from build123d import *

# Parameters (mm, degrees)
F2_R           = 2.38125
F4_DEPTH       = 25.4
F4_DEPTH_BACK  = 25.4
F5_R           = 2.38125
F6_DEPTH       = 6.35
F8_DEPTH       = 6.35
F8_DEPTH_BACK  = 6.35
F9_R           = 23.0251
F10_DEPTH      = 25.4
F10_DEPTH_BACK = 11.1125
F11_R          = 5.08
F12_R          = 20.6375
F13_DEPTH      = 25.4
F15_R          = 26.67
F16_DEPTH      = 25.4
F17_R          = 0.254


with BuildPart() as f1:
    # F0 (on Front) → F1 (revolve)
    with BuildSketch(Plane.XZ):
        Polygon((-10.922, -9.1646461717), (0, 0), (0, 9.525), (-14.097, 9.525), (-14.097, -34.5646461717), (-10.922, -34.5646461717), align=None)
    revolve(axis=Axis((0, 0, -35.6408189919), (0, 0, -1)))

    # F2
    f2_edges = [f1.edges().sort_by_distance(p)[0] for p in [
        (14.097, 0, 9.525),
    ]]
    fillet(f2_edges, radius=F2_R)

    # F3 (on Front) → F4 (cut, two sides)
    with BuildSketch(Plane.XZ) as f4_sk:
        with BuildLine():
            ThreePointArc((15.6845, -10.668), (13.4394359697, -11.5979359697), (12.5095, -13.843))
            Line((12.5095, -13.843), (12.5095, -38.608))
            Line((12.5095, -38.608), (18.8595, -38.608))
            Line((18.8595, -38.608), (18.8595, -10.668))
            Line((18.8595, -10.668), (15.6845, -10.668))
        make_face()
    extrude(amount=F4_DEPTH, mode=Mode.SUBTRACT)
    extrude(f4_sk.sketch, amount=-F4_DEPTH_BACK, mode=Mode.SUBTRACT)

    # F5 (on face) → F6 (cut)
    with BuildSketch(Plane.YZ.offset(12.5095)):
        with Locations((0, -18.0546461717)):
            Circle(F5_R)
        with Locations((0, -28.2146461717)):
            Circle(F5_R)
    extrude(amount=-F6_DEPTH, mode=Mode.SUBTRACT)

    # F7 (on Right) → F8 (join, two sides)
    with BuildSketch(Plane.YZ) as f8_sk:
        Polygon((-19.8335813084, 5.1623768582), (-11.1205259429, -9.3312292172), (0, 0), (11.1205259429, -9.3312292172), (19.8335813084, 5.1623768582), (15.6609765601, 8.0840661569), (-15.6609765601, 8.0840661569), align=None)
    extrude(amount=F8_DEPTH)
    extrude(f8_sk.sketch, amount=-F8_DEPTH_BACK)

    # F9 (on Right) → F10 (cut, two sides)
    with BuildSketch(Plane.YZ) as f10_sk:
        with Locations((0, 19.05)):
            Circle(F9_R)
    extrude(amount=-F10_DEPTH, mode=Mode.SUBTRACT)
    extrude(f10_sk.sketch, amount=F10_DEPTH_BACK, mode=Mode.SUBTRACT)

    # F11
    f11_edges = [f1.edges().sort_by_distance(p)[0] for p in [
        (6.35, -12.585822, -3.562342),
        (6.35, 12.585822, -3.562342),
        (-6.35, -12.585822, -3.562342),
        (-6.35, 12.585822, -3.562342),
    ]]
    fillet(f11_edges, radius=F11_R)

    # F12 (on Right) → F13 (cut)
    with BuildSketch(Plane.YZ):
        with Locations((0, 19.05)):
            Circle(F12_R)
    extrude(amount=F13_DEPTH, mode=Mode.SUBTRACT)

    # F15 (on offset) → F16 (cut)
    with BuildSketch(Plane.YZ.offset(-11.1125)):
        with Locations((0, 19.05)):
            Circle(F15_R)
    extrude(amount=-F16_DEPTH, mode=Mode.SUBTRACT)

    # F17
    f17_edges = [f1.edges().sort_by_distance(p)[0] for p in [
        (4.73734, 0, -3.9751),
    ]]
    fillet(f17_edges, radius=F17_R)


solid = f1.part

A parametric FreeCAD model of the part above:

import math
import FreeCAD as App
import Part
import Sketcher

V = App.Vector
Q = App.Units.Quantity


def edges_at(feature, points):
    """Names of the edges that pass closest to the given points."""
    edges = feature.Shape.Edges
    near = lambda p: min(range(len(edges)), key=lambda i: edges[i].distToShape(Part.Vertex(*p))[0])
    return sorted({f"Edge{near(p) + 1}" for p in points})

doc = App.newDocument("Part")
body = doc.addObject("PartDesign::Body", "Body")

# Sketch on XZ plane
sketch1 = doc.addObject("Sketcher::SketchObject", "Sketch")
body.addObject(sketch1)
sketch1.AttachmentSupport = (doc.XZ_Plane, [""])
sketch1.MapMode = "FlatFace"
sketch1.addGeometry([
    Part.LineSegment(V(-10.9, -9.2, 0), V(0, 0, 0)),  # 0
    Part.LineSegment(V(0, 0, 0), V(0, 9.5, 0)),  # 1
    Part.LineSegment(V(0, 9.5, 0), V(-14.1, 9.5, 0)),  # 2
    Part.LineSegment(V(-14.1, 9.5, 0), V(-14.1, -34.6, 0)),  # 3
    Part.LineSegment(V(-14.1, -34.6, 0), V(-10.9, -34.6, 0)),  # 4
    Part.LineSegment(V(-10.9, -34.6, 0), V(-10.9, -9.2, 0)),  # 5
], False)
sketch1.addConstraint([
    Sketcher.Constraint("Coincident", 0, 2, 1, 1),
    Sketcher.Constraint("Coincident", 1, 2, 2, 1),
    Sketcher.Constraint("Coincident", 2, 2, 3, 1),
    Sketcher.Constraint("Coincident", 3, 2, 4, 1),
    Sketcher.Constraint("Coincident", 4, 2, 5, 1),
    Sketcher.Constraint("Coincident", 5, 2, 0, 1),
    Sketcher.Constraint("Vertical", 1),
    Sketcher.Constraint("Horizontal", 2),
    Sketcher.Constraint("Vertical", 3),
    Sketcher.Constraint("Horizontal", 4),
    Sketcher.Constraint("Vertical", 5),
    Sketcher.Constraint("Coincident", 0, 2, -1, 1),
    Sketcher.Constraint("DistanceY", 5, 1, 5, 2, Q("1 in")),
    Sketcher.Constraint("Angle", 0, Q("40 deg")),
    Sketcher.Constraint("DistanceX", 2, 2, 2, 1, Q("0.555 in")),
    Sketcher.Constraint("DistanceX", 4, 1, 4, 2, Q("0.125 in")),
    Sketcher.Constraint("DistanceY", 1, 1, 1, 2, Q("0.375 in")),
])
revolution = doc.addObject("PartDesign::Revolution", "Revolution")
body.addObject(revolution)
revolution.Profile = sketch1
revolution.ReferenceAxis = (sketch1, ["V_Axis"])
revolution.Angle = 360
doc.recompute()

fillet = doc.addObject("PartDesign::Fillet", "Fillet")
body.addObject(fillet)
fillet.Base = (revolution, edges_at(revolution, [(14.097, 0, 9.525)]))
fillet.Radius = Q("0.09375 in")

# Sketch on XZ plane
sketch2 = doc.addObject("Sketcher::SketchObject", "Sketch001")
body.addObject(sketch2)
sketch2.AttachmentSupport = (doc.XZ_Plane, [""])
sketch2.MapMode = "FlatFace"
sketch2.addGeometry([
    Part.ArcOfCircle(Part.Circle(V(15.7, -13.8, 0), V(0, 0, 1), 3.2), math.radians(90), math.radians(180)),  # 0
    Part.LineSegment(V(12.5, -13.8, 0), V(12.5, -38.6, 0)),  # 1
    Part.LineSegment(V(12.5, -38.6, 0), V(18.9, -38.6, 0)),  # 2
    Part.LineSegment(V(18.9, -38.6, 0), V(18.9, -10.7, 0)),  # 3
    Part.LineSegment(V(18.9, -10.7, 0), V(15.7, -10.7, 0)),  # 4
], False)
sketch2.addConstraint([
    Sketcher.Constraint("Tangent", 0, 2, 1, 1),
    Sketcher.Constraint("Coincident", 1, 2, 2, 1),
    Sketcher.Constraint("Coincident", 2, 2, 3, 1),
    Sketcher.Constraint("Coincident", 3, 2, 4, 1),
    Sketcher.Constraint("Tangent", 4, 2, 0, 1),
    Sketcher.Constraint("Vertical", 1),
    Sketcher.Constraint("Horizontal", 2),
    Sketcher.Constraint("Vertical", 3),
    Sketcher.Constraint("Horizontal", 4),
    Sketcher.Constraint("DistanceY", 3, 1, 3, 2, Q("1.1 in")),
    Sketcher.Constraint("Radius", 0, Q("0.125 in")),
    Sketcher.Constraint("DistanceX", 2, 1, 2, 2, Q("0.25 in")),
    Sketcher.Constraint("DistanceY", 1, 2, -1, 1, Q("1.52 in")),
    Sketcher.Constraint("DistanceX", -1, 1, 0, 3, Q("0.6175 in")),
])
pocket1 = doc.addObject("PartDesign::Pocket", "Pocket")
body.addObject(pocket1)
pocket1.Profile = sketch2
pocket1.Type = "ThroughAll"
pocket1.Midplane = True

# Sketch on YZ plane
sketch3 = doc.addObject("Sketcher::SketchObject", "Sketch002")
body.addObject(sketch3)
sketch3.AttachmentSupport = (doc.YZ_Plane, [""])
sketch3.MapMode = "FlatFace"
sketch3.AttachmentOffset = App.Placement(V(0, 0, 0.4925 * 25.4), App.Rotation())
sketch3.addGeometry([
    Part.Circle(V(0, -18.1, 0), V(0, 0, 1), 2.4),
    Part.Circle(V(0, -28.2, 0), V(0, 0, 1), 2.4),
], False)
sketch3.addConstraint([
    Sketcher.Constraint("Equal", 0, 1),
    Sketcher.Constraint("PointOnObject", 0, 3, -2),
    Sketcher.Constraint("PointOnObject", 1, 3, -2),
    Sketcher.Constraint("Diameter", 0, Q("0.1875 in")),
    Sketcher.Constraint("DistanceY", 1, 3, 0, 3, Q("0.4 in")),
    Sketcher.Constraint("DistanceY", 0, 3, -1, 1, Q("18.054646 mm")),
])
pocket2 = doc.addObject("PartDesign::Pocket", "Pocket001")
body.addObject(pocket2)
pocket2.Profile = sketch3
pocket2.Length = Q("0.25 in")

# Sketch on YZ plane
sketch4 = doc.addObject("Sketcher::SketchObject", "Sketch003")
body.addObject(sketch4)
sketch4.AttachmentSupport = (doc.YZ_Plane, [""])
sketch4.MapMode = "FlatFace"
sketch4.addGeometry([
    Part.LineSegment(V(-20, 5, 0), V(-11, -9, 0)),  # 0
    Part.LineSegment(V(-11, -9, 0), V(0, 0, 0)),  # 1
    Part.LineSegment(V(0, 0, 0), V(11, -9, 0)),  # 2
    Part.LineSegment(V(11, -9, 0), V(20, 5, 0)),  # 3
    Part.LineSegment(V(20, 5, 0), V(16, 8, 0)),  # 4
    Part.LineSegment(V(16, 8, 0), V(-16, 8, 0)),  # 5
    Part.LineSegment(V(-16, 8, 0), V(-20, 5, 0)),  # 6
], False)
sketch4.addConstraint([
    Sketcher.Constraint("Coincident", 0, 2, 1, 1),
    Sketcher.Constraint("Coincident", 1, 2, 2, 1),
    Sketcher.Constraint("Coincident", 2, 2, 3, 1),
    Sketcher.Constraint("Coincident", 3, 2, 4, 1),
    Sketcher.Constraint("Coincident", 4, 2, 5, 1),
    Sketcher.Constraint("Coincident", 5, 2, 6, 1),
    Sketcher.Constraint("Coincident", 6, 2, 0, 1),
    Sketcher.Constraint("Horizontal", 5),
    Sketcher.Constraint("Coincident", 1, 2, -1, 1),
    Sketcher.Constraint("Symmetric", 0, 2, 2, 2, -2),
    Sketcher.Constraint("Symmetric", 3, 2, 6, 2, -2),
    Sketcher.Constraint("Equal", 4, 6),
    Sketcher.Constraint("Angle", 1, Q("40 deg")),
    Sketcher.Constraint("Angle", 4, Q("145 deg")),
    Sketcher.Constraint("Distance", 0, Q("16.911001 mm")),
    Sketcher.Constraint("Distance", 4, Q("5.09381 mm")),
    Sketcher.Constraint("DistanceX", 5, 2, 5, 1, Q("31.321953 mm")),
    Sketcher.Constraint("DistanceY", 0, 2, -1, 1, Q("9.331229 mm")),
])
pad1 = doc.addObject("PartDesign::Pad", "Pad")
body.addObject(pad1)
pad1.Profile = sketch4
pad1.Type = "TwoLengths"
pad1.Length = Q("0.25 in")
pad1.Length2 = Q("0.25 in")

# Sketch on YZ plane
sketch5 = doc.addObject("Sketcher::SketchObject", "Sketch004")
body.addObject(sketch5)
sketch5.AttachmentSupport = (doc.YZ_Plane, [""])
sketch5.MapMode = "FlatFace"
sketch5.addGeometry(Part.Circle(V(0, 19, 0), V(0, 0, 1), 23), False)
sketch5.addConstraint([
    Sketcher.Constraint("PointOnObject", 0, 3, -2),
    Sketcher.Constraint("Diameter", 0, Q("1.813 in")),
    Sketcher.Constraint("DistanceY", -1, 1, 0, 3, Q("0.75 in")),
])
pocket3 = doc.addObject("PartDesign::Pocket", "Pocket002")
body.addObject(pocket3)
pocket3.Profile = sketch5
pocket3.Type = "TwoLengths"
pocket3.Length = Q("1 in")
pocket3.Length2 = Q("0.4375 in")
doc.recompute()

fillet2 = doc.addObject("PartDesign::Fillet", "Fillet001")
body.addObject(fillet2)
fillet2.Base = (pocket3, edges_at(pocket3, [
    (6.35, -12.586, -3.562),
    (6.35, 12.586, -3.562),
    (-6.35, -12.586, -3.562),
    (-6.35, 12.586, -3.562),
]))
fillet2.Radius = Q("0.2 in")

# Sketch on YZ plane
sketch6 = doc.addObject("Sketcher::SketchObject", "Sketch005")
body.addObject(sketch6)
sketch6.AttachmentSupport = (doc.YZ_Plane, [""])
sketch6.MapMode = "FlatFace"
sketch6.addGeometry(Part.Circle(V(0, 19, 0), V(0, 0, 1), 21), False)
sketch6.addConstraint([
    Sketcher.Constraint("PointOnObject", 0, 3, -2),
    Sketcher.Constraint("Diameter", 0, Q("1.625 in")),
    Sketcher.Constraint("DistanceY", -1, 1, 0, 3, Q("0.75 in")),
])
pocket4 = doc.addObject("PartDesign::Pocket", "Pocket003")
body.addObject(pocket4)
pocket4.Profile = sketch6
pocket4.Length = Q("1 in")
pocket4.Reversed = True

# Sketch on YZ plane
sketch7 = doc.addObject("Sketcher::SketchObject", "Sketch006")
body.addObject(sketch7)
sketch7.AttachmentSupport = (doc.YZ_Plane, [""])
sketch7.MapMode = "FlatFace"
sketch7.AttachmentOffset = App.Placement(V(0, 0, -0.4375 * 25.4), App.Rotation())
sketch7.addGeometry(Part.Circle(V(0, 19, 0), V(0, 0, 1), 27), False)
sketch7.addConstraint([
    Sketcher.Constraint("PointOnObject", 0, 3, -2),
    Sketcher.Constraint("Diameter", 0, Q("2.1 in")),
    Sketcher.Constraint("DistanceY", -1, 1, 0, 3, Q("0.75 in")),
])
pocket5 = doc.addObject("PartDesign::Pocket", "Pocket004")
body.addObject(pocket5)
pocket5.Profile = sketch7
pocket5.Length = Q("1 in")
doc.recompute()

fillet3 = doc.addObject("PartDesign::Fillet", "Fillet002")
body.addObject(fillet3)
fillet3.Base = (pocket5, edges_at(pocket5, [(3.258, -3.089, -3.767)]))
fillet3.Radius = Q("0.01 in")

doc.recompute()
